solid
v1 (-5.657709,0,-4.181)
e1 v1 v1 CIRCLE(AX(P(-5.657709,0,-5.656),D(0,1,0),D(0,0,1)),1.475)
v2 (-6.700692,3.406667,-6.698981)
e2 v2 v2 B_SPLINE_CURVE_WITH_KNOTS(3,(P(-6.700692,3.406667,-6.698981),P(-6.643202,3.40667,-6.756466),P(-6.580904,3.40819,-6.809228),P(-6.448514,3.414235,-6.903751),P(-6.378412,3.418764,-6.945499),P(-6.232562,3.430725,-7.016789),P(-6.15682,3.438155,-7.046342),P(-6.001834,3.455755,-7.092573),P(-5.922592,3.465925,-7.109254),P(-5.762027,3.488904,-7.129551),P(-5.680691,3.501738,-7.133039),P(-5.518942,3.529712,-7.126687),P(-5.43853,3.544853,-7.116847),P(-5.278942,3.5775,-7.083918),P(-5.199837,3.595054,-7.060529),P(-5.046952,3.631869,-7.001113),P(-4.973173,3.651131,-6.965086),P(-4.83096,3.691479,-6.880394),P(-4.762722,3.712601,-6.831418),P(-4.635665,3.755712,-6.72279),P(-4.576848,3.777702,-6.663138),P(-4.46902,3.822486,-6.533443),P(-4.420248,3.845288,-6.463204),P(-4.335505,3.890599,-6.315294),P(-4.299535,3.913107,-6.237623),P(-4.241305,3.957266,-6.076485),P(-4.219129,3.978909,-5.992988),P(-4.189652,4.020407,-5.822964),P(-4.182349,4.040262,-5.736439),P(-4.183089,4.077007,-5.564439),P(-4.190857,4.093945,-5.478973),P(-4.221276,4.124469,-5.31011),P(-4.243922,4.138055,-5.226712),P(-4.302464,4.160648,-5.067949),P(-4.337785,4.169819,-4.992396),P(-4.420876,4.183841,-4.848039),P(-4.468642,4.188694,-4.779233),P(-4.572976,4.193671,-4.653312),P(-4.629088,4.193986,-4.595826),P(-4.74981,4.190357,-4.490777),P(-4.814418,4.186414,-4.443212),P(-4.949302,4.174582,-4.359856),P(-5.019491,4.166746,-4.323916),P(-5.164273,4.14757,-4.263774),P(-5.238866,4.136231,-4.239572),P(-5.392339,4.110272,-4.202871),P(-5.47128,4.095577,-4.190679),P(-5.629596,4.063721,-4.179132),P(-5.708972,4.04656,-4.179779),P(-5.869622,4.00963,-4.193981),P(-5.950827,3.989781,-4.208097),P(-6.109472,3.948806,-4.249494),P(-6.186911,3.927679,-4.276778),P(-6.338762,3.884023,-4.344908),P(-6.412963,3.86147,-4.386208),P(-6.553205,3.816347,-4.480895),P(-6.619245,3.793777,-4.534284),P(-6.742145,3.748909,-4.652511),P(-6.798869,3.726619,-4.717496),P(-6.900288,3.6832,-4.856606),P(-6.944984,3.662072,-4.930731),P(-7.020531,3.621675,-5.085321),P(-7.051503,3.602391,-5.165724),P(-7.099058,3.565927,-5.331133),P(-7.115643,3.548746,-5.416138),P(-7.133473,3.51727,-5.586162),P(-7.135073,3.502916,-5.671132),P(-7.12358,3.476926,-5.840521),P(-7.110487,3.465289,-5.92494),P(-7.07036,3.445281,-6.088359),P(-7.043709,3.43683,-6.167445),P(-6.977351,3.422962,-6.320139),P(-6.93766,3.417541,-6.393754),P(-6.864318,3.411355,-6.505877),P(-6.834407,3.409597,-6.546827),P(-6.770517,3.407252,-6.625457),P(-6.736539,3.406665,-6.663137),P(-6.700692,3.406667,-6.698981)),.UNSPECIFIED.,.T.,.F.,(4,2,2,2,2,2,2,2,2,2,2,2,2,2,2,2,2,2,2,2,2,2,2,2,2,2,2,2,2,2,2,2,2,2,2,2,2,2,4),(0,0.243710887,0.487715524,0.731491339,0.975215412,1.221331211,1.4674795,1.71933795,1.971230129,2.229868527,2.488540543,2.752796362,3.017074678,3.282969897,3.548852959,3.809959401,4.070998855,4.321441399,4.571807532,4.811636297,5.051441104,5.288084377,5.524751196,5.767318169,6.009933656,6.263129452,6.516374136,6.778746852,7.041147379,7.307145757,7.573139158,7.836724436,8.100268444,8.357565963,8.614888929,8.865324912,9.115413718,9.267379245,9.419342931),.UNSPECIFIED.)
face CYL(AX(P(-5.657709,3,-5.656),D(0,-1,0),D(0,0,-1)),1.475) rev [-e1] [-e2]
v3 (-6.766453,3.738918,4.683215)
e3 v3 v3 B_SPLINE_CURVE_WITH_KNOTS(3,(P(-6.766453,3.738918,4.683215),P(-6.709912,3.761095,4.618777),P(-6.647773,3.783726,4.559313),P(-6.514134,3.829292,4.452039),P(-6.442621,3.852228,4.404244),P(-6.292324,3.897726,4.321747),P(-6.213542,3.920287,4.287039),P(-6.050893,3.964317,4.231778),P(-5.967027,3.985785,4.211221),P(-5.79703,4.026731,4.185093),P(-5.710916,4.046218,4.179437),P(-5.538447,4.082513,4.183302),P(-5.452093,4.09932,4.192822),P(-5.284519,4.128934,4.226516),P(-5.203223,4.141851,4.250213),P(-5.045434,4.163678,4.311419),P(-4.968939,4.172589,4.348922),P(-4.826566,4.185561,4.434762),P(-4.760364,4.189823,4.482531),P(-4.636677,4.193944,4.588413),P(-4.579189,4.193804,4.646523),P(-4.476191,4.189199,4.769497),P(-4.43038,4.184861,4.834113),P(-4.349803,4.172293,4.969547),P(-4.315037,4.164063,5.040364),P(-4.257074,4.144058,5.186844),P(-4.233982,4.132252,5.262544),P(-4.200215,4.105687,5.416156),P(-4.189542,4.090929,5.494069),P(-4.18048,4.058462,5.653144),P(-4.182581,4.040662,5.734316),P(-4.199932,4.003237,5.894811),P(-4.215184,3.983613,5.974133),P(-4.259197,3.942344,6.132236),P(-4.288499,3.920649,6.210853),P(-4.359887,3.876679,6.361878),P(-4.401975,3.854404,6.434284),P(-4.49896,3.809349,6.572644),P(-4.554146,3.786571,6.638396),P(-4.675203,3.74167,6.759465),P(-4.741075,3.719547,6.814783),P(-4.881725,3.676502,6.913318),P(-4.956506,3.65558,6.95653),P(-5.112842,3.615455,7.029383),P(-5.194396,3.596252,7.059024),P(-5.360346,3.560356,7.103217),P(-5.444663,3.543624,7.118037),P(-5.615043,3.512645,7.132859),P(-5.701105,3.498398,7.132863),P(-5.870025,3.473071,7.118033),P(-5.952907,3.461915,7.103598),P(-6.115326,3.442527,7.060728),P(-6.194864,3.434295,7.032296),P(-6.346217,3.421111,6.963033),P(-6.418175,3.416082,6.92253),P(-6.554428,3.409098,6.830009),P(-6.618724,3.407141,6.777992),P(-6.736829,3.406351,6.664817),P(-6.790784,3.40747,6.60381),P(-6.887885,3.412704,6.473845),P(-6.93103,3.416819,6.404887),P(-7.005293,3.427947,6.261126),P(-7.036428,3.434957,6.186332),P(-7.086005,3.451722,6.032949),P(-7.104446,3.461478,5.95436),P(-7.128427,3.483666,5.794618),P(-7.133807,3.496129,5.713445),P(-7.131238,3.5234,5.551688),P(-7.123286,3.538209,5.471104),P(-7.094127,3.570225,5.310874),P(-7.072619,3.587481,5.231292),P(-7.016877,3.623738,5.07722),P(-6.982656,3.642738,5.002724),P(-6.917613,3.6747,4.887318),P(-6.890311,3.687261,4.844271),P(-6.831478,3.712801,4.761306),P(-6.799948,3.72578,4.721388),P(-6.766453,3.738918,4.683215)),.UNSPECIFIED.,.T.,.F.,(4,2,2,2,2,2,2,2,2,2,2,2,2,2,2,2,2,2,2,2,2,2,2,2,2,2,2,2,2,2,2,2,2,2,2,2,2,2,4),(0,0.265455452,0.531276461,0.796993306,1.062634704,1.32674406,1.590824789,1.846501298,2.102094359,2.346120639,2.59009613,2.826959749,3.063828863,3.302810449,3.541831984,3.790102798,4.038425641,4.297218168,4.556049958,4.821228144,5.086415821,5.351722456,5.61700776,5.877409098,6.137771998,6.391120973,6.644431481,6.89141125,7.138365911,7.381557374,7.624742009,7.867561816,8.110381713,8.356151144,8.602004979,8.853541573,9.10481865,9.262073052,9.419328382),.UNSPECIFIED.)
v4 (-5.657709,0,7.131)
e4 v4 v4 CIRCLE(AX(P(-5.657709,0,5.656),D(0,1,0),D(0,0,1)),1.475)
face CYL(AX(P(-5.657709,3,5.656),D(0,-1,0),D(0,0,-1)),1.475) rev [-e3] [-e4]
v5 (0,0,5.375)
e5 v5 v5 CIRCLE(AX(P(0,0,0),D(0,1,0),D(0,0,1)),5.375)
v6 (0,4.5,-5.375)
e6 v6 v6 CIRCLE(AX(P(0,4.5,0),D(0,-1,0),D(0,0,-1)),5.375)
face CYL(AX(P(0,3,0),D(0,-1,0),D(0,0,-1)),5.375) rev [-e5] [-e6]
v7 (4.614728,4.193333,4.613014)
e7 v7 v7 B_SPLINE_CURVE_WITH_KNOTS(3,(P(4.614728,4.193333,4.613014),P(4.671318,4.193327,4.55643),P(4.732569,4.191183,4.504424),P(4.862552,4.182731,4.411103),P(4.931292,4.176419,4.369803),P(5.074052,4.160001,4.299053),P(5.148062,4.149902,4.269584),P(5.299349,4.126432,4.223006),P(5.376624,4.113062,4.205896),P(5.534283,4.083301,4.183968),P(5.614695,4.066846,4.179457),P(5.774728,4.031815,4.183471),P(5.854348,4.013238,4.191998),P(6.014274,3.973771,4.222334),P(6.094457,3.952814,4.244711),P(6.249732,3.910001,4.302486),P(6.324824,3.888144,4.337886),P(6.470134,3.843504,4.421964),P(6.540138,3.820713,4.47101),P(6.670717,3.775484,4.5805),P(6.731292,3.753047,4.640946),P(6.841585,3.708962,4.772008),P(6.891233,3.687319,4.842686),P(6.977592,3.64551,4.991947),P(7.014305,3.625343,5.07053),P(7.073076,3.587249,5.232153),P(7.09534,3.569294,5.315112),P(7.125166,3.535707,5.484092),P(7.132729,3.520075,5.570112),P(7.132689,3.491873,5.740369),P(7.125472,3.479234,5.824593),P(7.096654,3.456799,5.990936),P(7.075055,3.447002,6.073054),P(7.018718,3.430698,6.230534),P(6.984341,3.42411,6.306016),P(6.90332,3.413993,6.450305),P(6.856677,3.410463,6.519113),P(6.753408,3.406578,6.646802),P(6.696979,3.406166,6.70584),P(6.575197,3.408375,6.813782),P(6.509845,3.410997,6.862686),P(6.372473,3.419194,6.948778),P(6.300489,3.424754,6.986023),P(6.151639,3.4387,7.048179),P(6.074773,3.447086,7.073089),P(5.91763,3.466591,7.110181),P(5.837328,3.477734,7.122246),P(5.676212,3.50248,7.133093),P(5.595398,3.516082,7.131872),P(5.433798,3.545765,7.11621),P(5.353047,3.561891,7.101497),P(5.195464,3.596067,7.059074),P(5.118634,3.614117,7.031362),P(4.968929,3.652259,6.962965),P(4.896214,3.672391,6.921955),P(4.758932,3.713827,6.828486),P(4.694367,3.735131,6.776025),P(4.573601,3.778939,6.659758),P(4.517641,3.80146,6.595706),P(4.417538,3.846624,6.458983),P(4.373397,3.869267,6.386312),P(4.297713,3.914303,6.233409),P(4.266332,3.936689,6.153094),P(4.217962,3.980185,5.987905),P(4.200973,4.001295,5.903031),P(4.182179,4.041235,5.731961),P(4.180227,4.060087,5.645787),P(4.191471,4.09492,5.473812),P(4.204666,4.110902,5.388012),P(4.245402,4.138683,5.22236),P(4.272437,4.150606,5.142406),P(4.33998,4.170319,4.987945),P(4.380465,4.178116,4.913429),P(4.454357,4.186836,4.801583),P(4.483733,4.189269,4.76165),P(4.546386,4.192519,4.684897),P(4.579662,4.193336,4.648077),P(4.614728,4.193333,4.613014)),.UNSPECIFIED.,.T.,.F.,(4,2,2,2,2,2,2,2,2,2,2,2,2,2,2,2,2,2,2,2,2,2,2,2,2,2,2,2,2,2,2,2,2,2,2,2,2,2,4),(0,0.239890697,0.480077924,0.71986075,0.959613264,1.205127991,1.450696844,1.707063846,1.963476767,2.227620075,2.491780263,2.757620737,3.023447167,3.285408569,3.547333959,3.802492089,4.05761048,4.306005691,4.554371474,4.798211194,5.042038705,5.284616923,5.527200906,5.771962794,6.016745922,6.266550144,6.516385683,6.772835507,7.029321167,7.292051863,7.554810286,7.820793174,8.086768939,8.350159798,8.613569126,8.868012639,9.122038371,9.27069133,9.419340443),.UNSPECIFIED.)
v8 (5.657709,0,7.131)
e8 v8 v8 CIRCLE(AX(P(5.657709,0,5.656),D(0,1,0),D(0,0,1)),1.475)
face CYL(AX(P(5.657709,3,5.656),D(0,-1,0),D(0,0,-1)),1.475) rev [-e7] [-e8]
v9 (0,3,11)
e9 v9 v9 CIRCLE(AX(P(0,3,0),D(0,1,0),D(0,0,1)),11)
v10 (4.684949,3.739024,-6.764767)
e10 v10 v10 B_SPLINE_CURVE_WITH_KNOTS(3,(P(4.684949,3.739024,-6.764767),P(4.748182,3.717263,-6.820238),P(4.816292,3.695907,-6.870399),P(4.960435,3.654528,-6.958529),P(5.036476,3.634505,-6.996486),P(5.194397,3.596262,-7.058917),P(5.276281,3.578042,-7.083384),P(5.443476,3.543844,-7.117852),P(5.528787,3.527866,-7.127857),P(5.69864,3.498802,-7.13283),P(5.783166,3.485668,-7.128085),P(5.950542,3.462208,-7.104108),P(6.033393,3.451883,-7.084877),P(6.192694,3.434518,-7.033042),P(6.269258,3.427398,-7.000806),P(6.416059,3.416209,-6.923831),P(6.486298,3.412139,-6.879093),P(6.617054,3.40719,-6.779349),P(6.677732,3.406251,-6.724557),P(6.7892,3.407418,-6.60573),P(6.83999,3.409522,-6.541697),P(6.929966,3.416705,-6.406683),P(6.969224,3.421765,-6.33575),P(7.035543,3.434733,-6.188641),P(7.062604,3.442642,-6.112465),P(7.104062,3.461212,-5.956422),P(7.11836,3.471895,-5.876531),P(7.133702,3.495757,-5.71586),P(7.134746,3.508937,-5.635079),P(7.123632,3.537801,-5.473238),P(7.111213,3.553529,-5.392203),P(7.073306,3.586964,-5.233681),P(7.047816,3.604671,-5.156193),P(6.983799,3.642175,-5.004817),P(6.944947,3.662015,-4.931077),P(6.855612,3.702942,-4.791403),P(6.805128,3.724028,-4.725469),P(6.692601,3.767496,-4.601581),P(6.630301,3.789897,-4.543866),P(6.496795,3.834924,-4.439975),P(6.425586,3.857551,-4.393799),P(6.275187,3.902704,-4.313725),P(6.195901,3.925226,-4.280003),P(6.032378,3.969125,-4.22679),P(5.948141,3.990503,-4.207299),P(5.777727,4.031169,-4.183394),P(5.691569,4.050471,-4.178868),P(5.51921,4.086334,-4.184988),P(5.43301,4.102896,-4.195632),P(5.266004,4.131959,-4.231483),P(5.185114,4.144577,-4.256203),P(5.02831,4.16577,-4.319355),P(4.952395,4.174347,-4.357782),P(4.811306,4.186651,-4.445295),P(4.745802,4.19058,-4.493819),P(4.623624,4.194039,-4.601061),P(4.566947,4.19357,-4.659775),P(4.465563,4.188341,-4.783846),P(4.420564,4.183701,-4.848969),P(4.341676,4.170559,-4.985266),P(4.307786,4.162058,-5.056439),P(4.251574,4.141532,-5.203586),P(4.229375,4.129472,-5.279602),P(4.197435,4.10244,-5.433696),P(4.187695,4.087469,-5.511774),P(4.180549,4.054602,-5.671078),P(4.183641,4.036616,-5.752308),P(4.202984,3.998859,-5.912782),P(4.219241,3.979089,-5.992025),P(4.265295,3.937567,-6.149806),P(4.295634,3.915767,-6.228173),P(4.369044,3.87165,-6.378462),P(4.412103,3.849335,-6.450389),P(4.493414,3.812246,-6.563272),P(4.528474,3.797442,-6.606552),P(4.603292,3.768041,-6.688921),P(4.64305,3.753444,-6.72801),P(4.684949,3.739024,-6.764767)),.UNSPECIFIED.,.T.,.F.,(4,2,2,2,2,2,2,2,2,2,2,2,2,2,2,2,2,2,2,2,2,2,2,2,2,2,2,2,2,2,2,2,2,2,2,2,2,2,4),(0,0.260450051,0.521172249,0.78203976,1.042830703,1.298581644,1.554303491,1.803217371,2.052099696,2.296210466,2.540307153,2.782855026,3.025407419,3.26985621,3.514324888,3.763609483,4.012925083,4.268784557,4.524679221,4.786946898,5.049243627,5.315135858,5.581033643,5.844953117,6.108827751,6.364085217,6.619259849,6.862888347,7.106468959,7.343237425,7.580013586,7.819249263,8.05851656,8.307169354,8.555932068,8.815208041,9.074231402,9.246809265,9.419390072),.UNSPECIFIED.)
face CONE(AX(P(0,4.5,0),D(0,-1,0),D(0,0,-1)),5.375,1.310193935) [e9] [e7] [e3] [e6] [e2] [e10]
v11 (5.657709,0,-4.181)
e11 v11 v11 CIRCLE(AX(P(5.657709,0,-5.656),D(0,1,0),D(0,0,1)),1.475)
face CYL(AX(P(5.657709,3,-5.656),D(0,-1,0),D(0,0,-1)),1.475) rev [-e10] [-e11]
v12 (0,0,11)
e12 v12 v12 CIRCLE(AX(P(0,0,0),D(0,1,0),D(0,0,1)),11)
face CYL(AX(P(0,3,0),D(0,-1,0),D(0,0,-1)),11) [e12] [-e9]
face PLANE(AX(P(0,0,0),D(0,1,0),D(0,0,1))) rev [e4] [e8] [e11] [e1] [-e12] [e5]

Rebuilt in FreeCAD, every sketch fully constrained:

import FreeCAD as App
import Part
import Sketcher

V = App.Vector
Q = App.Units.Quantity


def add_polygon(sketch, points):
    """Adds a closed chain of lines whose ends are joined by coincident constraints."""
    first, n = sketch.GeometryCount, len(points)
    for a, b in zip(points, points[1:] + points[:1]):
        sketch.addGeometry(Part.LineSegment(App.Vector(*a, 0), App.Vector(*b, 0)), False)
    for i in range(n):
        sketch.addConstraint(Sketcher.Constraint("Coincident", first + i, 2, first + (i + 1) % n, 1))

doc = App.newDocument("Part")
body = doc.addObject("PartDesign::Body", "Body")

sketch1 = body.newObject("Sketcher::SketchObject", "Sketch")
sketch1.AttachmentSupport = (doc.getObject("XZ_Plane"), [""])
sketch1.MapMode = "FlatFace"
sketch1.addGeometry(Part.Circle(V(0, 0, 0), V(0, 0, 1), 11), False)
sketch1.addGeometry(Part.Circle(V(-5.7, -5.7, 0), V(0, 0, 1), 1.5), False)
sketch1.addGeometry(Part.Circle(V(-5.7, 5.7, 0), V(0, 0, 1), 1.5), False)
sketch1.addGeometry(Part.Circle(V(5.7, -5.7, 0), V(0, 0, 1), 1.5), False)
sketch1.addGeometry(Part.Circle(V(0, 0, 0), V(0, 0, 1), 5.4), False)
sketch1.addGeometry(Part.Circle(V(5.7, 5.7, 0), V(0, 0, 1), 1.5), False)
sketch1.addConstraint(Sketcher.Constraint("Coincident", 0, 3, -1, 1))
sketch1.addConstraint(Sketcher.Constraint("Coincident", 4, 3, -1, 1))
sketch1.addConstraint(Sketcher.Constraint("Equal", 1, 2))
sketch1.addConstraint(Sketcher.Constraint("Equal", 2, 3))
sketch1.addConstraint(Sketcher.Constraint("Equal", 3, 5))
sketch1.addConstraint(Sketcher.Constraint("Symmetric", 2, 3, 3, 3, -1, 1))
sketch1.addConstraint(Sketcher.Constraint("Symmetric", 1, 3, 5, 3, -1, 1))
sketch1.addConstraint(Sketcher.Constraint("Symmetric", 1, 3, 3, 3, -2))
sketch1.addConstraint(Sketcher.Constraint("Diameter", 0, Q("22 mm")))
sketch1.addConstraint(Sketcher.Constraint("Diameter", 1, Q("2.95 mm")))
sketch1.addConstraint(Sketcher.Constraint("Diameter", 4, Q("10.75 mm")))
sketch1.addConstraint(Sketcher.Constraint("DistanceY", 1, 3, -1, 1, Q("5.656 mm")))
sketch1.addConstraint(Sketcher.Constraint("DistanceX", 1, 3, -1, 1, Q("5.657709 mm")))
pad1 = body.newObject("PartDesign::Pad", "Pad")
pad1.Profile = sketch1
pad1.Length = 3
pad1.Reversed = True

sketch2 = body.newObject("Sketcher::SketchObject", "Sketch001")
sketch2.AttachmentSupport = (doc.getObject("YZ_Plane"), [""])
sketch2.MapMode = "FlatFace"
add_polygon(sketch2, [(4.5, -5.4), (3, -5.4), (3, -11)])
sketch2.addConstraint(Sketcher.Constraint("Horizontal", 0))
sketch2.addConstraint(Sketcher.Constraint("Vertical", 1))
sketch2.addConstraint(Sketcher.Constraint("DistanceX", 0, 2, 0, 1, Q("1.5 mm")))
sketch2.addConstraint(Sketcher.Constraint("DistanceX", -1, 1, 0, 2, Q("3 mm")))
sketch2.addConstraint(Sketcher.Constraint("DistanceY", 1, 2, -1, 1, Q("11 mm")))
sketch2.addConstraint(Sketcher.Constraint("DistanceY", 1, 2, 1, 1, Q("5.625 mm")))
revolution = body.newObject("PartDesign::Revolution", "Revolution")
revolution.Profile = sketch2
revolution.ReferenceAxis = (sketch2, ["H_Axis"])
revolution.Angle = 360

sketch3 = body.newObject("Sketcher::SketchObject", "Sketch002")
sketch3.AttachmentSupport = (doc.getObject("XZ_Plane"), [""])
sketch3.MapMode = "FlatFace"
sketch3.addGeometry(Part.Circle(V(-5.7, 5.7, 0), V(0, 0, 1), 1.5), False)
sketch3.addGeometry(Part.Circle(V(-5.7, -5.7, 0), V(0, 0, 1), 1.5), False)
sketch3.addGeometry(Part.Circle(V(5.7, 5.7, 0), V(0, 0, 1), 1.5), False)
sketch3.addGeometry(Part.Circle(V(5.7, -5.7, 0), V(0, 0, 1), 1.5), False)
sketch3.addConstraint(Sketcher.Constraint("Equal", 0, 1))
sketch3.addConstraint(Sketcher.Constraint("Equal", 1, 2))
sketch3.addConstraint(Sketcher.Constraint("Equal", 2, 3))
sketch3.addConstraint(Sketcher.Constraint("Symmetric", 1, 3, 2, 3, -1, 1))
sketch3.addConstraint(Sketcher.Constraint("Symmetric", 0, 3, 3, 3, -1, 1))
sketch3.addConstraint(Sketcher.Constraint("Symmetric", 0, 3, 2, 3, -2))
sketch3.addConstraint(Sketcher.Constraint("Diameter", 0, Q("2.95 mm")))
sketch3.addConstraint(Sketcher.Constraint("DistanceY", -1, 1, 0, 3, Q("5.656 mm")))
sketch3.addConstraint(Sketcher.Constraint("DistanceX", 0, 3, -1, 1, Q("5.657709 mm")))
pocket1 = body.newObject("PartDesign::Pocket", "Pocket")
pocket1.Profile = sketch3
pocket1.Length = 11

doc.recompute()
